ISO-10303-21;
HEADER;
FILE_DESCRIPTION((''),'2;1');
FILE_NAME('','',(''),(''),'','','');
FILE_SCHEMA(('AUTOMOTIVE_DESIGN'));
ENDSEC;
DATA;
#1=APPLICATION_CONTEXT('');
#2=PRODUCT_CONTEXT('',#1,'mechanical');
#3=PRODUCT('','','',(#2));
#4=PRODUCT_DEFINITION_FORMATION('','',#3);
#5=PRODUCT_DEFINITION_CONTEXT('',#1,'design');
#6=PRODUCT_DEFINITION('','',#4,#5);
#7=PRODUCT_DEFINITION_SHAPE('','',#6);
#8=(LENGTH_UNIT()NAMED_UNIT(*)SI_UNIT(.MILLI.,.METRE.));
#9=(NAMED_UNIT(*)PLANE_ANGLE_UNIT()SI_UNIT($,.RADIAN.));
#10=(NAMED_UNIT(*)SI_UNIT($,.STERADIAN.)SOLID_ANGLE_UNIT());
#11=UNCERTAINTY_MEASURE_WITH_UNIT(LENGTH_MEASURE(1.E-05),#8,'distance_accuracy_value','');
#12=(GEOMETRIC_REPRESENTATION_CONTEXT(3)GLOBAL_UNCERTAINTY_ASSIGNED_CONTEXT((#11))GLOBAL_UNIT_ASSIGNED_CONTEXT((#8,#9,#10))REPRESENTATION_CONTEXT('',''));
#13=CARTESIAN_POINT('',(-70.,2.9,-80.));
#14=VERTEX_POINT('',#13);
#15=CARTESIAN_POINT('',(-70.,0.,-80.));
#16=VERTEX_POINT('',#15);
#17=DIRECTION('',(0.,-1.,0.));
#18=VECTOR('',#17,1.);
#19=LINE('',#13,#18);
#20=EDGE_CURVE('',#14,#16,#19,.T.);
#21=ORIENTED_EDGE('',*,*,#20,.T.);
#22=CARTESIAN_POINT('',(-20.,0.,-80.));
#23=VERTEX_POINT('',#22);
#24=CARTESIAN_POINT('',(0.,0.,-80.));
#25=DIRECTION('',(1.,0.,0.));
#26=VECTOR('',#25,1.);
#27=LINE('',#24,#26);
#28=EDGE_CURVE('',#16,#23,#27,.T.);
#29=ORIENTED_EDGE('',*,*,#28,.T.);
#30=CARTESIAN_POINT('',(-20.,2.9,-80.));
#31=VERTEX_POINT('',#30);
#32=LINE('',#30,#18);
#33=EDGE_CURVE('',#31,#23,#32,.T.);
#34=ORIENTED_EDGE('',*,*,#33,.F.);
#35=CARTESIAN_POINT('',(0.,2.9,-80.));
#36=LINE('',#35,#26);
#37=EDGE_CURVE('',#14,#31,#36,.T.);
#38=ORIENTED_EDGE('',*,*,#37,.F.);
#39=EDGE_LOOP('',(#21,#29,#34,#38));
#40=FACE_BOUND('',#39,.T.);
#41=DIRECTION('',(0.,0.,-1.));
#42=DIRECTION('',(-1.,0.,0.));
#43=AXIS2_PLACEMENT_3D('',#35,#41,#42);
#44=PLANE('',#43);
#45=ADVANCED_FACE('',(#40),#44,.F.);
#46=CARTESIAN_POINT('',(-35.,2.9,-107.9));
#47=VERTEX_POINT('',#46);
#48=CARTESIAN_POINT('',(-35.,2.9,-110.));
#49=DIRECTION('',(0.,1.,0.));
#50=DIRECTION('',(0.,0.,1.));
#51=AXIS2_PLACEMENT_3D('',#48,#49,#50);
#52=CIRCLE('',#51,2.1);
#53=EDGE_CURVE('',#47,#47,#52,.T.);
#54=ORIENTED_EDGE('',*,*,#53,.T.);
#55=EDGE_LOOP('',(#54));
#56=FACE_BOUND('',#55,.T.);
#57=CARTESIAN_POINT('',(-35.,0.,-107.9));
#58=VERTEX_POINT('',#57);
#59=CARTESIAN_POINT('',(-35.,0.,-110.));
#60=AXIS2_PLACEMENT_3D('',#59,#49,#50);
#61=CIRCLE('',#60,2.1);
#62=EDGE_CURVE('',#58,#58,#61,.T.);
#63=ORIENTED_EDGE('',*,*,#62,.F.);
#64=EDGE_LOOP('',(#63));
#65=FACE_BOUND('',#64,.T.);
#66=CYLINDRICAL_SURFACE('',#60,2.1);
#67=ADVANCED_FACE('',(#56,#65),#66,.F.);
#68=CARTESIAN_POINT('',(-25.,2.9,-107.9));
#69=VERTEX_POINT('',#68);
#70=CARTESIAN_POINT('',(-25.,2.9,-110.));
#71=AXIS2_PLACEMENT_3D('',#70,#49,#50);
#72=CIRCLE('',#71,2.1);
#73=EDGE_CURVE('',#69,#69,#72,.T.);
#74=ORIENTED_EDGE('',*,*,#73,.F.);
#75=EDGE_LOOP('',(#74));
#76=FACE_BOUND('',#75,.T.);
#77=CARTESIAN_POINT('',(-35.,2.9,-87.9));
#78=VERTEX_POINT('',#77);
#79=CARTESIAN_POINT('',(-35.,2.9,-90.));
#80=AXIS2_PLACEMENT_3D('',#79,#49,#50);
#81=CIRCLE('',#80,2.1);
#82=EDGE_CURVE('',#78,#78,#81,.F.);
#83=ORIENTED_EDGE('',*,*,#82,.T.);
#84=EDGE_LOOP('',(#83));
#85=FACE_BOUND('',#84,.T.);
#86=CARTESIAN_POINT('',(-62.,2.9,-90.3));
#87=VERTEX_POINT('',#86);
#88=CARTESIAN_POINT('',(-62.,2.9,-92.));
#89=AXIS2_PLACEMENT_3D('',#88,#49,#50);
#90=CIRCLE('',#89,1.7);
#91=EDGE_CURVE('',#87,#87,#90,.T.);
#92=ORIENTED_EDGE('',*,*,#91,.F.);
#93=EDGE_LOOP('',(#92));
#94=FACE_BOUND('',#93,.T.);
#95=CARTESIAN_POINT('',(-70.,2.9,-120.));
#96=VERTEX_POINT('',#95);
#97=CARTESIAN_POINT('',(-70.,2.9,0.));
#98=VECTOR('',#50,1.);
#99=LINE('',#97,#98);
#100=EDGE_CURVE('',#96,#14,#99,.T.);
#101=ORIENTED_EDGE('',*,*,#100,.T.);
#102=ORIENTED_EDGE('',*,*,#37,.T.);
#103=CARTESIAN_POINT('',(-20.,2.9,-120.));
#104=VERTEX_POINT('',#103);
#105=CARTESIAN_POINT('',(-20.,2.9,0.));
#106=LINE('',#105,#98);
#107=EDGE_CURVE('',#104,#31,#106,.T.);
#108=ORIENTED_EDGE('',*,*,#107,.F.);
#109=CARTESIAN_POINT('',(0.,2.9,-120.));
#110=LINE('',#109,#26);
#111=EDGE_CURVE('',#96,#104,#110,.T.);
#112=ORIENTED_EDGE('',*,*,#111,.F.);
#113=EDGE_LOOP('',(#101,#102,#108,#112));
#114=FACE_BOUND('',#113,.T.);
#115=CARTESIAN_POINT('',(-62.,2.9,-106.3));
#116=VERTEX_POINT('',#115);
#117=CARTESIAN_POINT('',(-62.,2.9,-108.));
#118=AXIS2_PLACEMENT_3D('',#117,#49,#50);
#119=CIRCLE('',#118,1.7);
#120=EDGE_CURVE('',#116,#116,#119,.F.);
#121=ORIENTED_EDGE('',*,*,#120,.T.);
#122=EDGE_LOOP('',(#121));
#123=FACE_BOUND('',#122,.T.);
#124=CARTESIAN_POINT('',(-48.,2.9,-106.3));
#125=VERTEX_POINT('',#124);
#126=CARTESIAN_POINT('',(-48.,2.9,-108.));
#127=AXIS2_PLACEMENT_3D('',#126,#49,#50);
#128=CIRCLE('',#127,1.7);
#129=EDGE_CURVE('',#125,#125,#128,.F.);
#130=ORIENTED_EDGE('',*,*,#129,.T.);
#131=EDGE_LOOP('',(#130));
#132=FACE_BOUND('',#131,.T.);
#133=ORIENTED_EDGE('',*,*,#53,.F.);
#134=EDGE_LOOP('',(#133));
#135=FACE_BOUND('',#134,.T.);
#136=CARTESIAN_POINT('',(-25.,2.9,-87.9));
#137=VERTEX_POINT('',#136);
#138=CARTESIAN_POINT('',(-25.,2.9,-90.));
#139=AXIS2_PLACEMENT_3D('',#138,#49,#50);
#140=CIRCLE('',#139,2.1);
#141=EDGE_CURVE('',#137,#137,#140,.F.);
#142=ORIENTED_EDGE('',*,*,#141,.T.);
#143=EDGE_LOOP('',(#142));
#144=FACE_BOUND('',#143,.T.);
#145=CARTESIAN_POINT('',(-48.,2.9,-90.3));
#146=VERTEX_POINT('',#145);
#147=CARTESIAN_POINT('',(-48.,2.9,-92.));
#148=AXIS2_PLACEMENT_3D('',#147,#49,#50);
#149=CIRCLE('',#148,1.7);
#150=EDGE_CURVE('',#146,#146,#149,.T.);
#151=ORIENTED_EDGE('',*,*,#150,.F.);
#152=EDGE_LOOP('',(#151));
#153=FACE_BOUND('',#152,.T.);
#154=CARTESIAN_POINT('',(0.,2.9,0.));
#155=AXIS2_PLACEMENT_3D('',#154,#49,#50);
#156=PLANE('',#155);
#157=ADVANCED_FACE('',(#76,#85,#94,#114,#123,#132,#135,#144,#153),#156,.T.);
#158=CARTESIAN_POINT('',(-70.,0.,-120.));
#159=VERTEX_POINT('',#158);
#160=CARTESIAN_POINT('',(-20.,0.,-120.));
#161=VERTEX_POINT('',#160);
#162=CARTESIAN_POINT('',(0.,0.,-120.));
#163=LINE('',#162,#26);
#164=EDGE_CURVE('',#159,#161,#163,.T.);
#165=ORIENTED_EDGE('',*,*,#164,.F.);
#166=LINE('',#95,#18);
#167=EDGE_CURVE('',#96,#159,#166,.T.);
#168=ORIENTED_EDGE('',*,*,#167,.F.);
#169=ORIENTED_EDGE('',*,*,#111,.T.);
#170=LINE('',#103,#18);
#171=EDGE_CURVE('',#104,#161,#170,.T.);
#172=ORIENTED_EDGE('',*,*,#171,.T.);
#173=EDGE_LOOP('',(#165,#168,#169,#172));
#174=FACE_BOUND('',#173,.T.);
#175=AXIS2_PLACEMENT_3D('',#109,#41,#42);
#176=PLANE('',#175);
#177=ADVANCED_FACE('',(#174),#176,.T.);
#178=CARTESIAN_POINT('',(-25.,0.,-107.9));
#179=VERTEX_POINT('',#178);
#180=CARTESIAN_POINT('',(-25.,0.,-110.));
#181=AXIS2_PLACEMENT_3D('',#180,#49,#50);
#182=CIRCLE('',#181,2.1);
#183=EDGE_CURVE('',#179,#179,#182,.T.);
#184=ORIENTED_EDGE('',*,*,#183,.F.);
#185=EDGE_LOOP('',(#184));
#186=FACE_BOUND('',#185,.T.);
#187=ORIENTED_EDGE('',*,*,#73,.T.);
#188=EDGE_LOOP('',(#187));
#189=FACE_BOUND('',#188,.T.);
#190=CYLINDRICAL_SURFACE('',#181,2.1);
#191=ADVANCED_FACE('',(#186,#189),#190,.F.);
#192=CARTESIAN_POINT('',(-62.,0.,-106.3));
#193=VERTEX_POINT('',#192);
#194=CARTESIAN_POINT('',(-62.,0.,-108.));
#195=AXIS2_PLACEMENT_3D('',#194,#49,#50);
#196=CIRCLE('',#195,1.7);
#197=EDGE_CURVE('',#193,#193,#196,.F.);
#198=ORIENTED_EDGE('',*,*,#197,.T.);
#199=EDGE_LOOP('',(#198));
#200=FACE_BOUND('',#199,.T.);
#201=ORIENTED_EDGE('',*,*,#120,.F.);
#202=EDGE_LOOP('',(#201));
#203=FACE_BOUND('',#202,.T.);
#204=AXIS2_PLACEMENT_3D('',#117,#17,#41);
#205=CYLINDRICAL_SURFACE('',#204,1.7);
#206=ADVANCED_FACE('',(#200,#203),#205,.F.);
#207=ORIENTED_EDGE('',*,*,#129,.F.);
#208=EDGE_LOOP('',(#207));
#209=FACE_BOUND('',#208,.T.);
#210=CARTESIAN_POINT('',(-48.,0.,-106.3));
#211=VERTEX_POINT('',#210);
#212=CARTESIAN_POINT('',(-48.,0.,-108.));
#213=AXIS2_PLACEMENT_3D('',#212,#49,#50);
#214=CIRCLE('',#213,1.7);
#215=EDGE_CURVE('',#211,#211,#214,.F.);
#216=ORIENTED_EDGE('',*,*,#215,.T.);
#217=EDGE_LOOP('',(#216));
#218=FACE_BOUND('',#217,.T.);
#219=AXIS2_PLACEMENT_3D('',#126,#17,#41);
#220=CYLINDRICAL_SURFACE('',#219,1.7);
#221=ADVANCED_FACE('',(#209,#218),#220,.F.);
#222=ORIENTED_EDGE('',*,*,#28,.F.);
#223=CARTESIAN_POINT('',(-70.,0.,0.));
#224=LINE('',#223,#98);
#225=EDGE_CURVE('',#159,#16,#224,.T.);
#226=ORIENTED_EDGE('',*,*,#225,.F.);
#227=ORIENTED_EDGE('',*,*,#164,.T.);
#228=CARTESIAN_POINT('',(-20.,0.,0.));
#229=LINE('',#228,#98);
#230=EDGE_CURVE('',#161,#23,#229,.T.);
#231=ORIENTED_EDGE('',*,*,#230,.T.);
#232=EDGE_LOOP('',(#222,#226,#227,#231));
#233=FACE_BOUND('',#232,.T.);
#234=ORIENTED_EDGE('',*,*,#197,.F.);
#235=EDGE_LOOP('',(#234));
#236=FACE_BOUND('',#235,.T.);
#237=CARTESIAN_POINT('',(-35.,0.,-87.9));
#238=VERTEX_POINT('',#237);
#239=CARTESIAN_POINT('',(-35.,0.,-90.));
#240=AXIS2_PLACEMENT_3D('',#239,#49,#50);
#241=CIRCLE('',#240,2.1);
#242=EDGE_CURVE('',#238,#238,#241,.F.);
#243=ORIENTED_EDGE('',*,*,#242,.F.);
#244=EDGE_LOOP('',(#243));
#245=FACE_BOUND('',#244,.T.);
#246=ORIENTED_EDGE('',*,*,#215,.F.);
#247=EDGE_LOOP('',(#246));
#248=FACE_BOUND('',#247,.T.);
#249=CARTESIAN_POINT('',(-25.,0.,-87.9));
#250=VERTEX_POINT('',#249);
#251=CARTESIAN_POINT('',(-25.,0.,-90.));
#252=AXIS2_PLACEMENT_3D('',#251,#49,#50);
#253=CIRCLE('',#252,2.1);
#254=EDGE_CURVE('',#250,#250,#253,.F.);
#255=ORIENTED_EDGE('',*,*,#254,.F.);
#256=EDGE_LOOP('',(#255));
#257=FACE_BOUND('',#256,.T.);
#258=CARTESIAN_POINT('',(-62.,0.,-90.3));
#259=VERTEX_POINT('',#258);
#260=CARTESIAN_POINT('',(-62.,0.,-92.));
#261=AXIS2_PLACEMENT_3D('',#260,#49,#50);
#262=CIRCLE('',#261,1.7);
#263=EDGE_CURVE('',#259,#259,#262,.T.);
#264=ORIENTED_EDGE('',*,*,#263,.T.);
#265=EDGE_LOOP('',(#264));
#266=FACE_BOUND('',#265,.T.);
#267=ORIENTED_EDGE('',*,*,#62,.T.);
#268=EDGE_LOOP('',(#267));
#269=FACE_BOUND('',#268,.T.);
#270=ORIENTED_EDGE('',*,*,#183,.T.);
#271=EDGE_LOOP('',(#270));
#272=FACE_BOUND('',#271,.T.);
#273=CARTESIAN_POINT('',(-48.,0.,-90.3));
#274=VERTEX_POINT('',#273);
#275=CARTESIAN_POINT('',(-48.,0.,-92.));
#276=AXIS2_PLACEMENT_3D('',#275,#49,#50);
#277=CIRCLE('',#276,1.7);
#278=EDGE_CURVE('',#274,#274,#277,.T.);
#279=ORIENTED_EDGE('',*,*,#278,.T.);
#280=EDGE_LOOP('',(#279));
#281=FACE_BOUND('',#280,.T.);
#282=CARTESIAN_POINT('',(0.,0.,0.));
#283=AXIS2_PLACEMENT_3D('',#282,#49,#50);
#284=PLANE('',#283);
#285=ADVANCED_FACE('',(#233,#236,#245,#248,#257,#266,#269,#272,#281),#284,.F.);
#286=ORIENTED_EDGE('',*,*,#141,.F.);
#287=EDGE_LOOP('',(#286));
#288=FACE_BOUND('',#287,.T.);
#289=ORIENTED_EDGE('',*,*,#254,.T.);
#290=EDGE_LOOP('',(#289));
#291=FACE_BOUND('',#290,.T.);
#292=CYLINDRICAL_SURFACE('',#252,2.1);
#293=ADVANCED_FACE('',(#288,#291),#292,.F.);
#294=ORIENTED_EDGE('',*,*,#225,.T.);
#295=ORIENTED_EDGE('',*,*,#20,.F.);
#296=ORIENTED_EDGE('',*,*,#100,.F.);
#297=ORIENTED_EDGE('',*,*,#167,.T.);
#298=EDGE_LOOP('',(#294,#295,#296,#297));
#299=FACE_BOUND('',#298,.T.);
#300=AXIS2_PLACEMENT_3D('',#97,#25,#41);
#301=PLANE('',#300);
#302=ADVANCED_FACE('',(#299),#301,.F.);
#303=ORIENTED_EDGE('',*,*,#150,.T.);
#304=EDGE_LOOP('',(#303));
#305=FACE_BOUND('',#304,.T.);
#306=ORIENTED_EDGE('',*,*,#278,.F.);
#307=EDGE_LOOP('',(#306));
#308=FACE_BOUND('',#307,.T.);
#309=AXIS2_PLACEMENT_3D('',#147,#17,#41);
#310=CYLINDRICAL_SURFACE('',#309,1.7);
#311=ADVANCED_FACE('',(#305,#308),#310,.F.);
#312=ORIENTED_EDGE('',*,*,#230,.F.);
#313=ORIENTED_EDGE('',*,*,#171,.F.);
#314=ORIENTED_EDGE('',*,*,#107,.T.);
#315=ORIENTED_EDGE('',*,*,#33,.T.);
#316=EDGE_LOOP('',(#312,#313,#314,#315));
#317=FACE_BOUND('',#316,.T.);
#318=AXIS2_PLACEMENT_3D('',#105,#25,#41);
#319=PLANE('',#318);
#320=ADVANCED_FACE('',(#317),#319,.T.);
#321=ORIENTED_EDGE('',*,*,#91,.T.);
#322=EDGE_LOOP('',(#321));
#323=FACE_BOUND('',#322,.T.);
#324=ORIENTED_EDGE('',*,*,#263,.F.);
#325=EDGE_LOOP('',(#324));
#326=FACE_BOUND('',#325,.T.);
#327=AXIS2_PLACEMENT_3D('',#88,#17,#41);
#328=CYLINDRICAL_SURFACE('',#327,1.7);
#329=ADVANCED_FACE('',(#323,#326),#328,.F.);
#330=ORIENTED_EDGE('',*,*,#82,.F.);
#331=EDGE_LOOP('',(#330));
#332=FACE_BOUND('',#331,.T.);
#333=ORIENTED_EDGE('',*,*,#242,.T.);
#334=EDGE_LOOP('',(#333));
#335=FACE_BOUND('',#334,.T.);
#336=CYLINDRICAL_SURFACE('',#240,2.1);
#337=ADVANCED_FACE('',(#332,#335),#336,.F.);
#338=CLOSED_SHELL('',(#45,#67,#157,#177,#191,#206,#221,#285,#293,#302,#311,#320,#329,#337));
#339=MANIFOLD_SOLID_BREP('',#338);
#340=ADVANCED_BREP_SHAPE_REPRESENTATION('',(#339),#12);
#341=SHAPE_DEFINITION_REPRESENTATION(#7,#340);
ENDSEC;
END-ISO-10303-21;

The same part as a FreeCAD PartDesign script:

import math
import FreeCAD as App
import Part
import Sketcher

doc = App.newDocument("Part")
body = doc.addObject("PartDesign::Body", "Body")

# Sketch on XZ plane
sketch1 = body.newObject("Sketcher::SketchObject", "Sketch")
sketch1.AttachmentSupport = (doc.getObject("XZ_Plane"), [""])
sketch1.MapMode = "FlatFace"
sketch1.addGeometry(Part.LineSegment(App.Vector(-70, -80, 0), App.Vector(-20, -80, 0)), False)
sketch1.addGeometry(Part.LineSegment(App.Vector(-20, -80, 0), App.Vector(-20, -120, 0)), False)
sketch1.addGeometry(Part.LineSegment(App.Vector(-20, -120, 0), App.Vector(-70, -120, 0)), False)
sketch1.addGeometry(Part.LineSegment(App.Vector(-70, -120, 0), App.Vector(-70, -80, 0)), False)
sketch1.addGeometry(Part.ArcOfCircle(Part.Circle(App.Vector(-48, -92, 0), App.Vector(0, 0, 1), 1.7), math.radians(90), math.radians(360)), False)
sketch1.addGeometry(Part.ArcOfCircle(Part.Circle(App.Vector(-48, -92, 0), App.Vector(0, 0, 1), 1.7), math.radians(0), math.radians(90)), False)
sketch1.addGeometry(Part.ArcOfCircle(Part.Circle(App.Vector(-62, -92, 0), App.Vector(0, 0, 1), 1.7), math.radians(180), math.radians(360)), False)
sketch1.addGeometry(Part.ArcOfCircle(Part.Circle(App.Vector(-62, -92, 0), App.Vector(0, 0, 1), 1.7), math.radians(0), math.radians(90)), False)
sketch1.addGeometry(Part.ArcOfCircle(Part.Circle(App.Vector(-62, -92, 0), App.Vector(0, 0, 1), 1.7), math.radians(90), math.radians(180)), False)
sketch1.addGeometry(Part.Circle(App.Vector(-62, -108, 0), App.Vector(0, 0, 1), 1.7), False)
sketch1.addGeometry(Part.Circle(App.Vector(-48, -108, 0), App.Vector(0, 0, 1), 1.7), False)
sketch1.addConstraint(Sketcher.Constraint("Coincident", 0, 2, 1, 1))
sketch1.addConstraint(Sketcher.Constraint("Coincident", 1, 2, 2, 1))
sketch1.addConstraint(Sketcher.Constraint("Coincident", 2, 2, 3, 1))
sketch1.addConstraint(Sketcher.Constraint("Coincident", 3, 2, 0, 1))
sketch1.addConstraint(Sketcher.Constraint("Tangent", 4, 1, 5, 2))
sketch1.addConstraint(Sketcher.Constraint("Coincident", 5, 1, 4, 2))
sketch1.addConstraint(Sketcher.Constraint("Tangent", 6, 2, 7, 1))
sketch1.addConstraint(Sketcher.Constraint("Tangent", 7, 2, 8, 1))
sketch1.addConstraint(Sketcher.Constraint("Tangent", 8, 2, 6, 1))
sketch1.addConstraint(Sketcher.Constraint("Horizontal", 0))
sketch1.addConstraint(Sketcher.Constraint("Vertical", 1))
sketch1.addConstraint(Sketcher.Constraint("Horizontal", 2))
sketch1.addConstraint(Sketcher.Constraint("Vertical", 3))
sketch1.addConstraint(Sketcher.Constraint("Equal", 5, 6))
sketch1.addConstraint(Sketcher.Constraint("Equal", 8, 9))
sketch1.addConstraint(Sketcher.Constraint("Equal", 9, 10))
sketch1.addConstraint(Sketcher.Constraint("Horizontal", 5, 3, 6, 3))
sketch1.addConstraint(Sketcher.Constraint("Horizontal", 9, 3, 10, 3))
sketch1.addConstraint(Sketcher.Constraint("Horizontal", 8, 3, 5, 1))
sketch1.addConstraint(Sketcher.Constraint("Horizontal", 5, 1, 6, 2))
sketch1.addConstraint(Sketcher.Constraint("Horizontal", 6, 2, 8, 2))
sketch1.addConstraint(Sketcher.Constraint("Vertical", 8, 3, 9, 3))
sketch1.addConstraint(Sketcher.Constraint("Vertical", 5, 3, 10, 3))
sketch1.addConstraint(Sketcher.Constraint("Vertical", 10, 3, 4, 1))
sketch1.addConstraint(Sketcher.Constraint("Vertical", 9, 3, 7, 2))
sketch1.addConstraint(Sketcher.Constraint("Diameter", 9, 3.4))
sketch1.addConstraint(Sketcher.Constraint("DistanceX", 0, 1, 0, 2, 50.0))
sketch1.addConstraint(Sketcher.Constraint("DistanceY", 1, 2, 1, 1, 40.0))
sketch1.addConstraint(Sketcher.Constraint("DistanceX", 4, 3, -1, 1, 48.0))
sketch1.addConstraint(Sketcher.Constraint("DistanceY", 4, 3, -1, 1, 92.0))
sketch1.addConstraint(Sketcher.Constraint("DistanceX", 6, 3, -1, 1, 62.0))
sketch1.addConstraint(Sketcher.Constraint("DistanceY", 9, 3, -1, 1, 108.0))
sketch1.addConstraint(Sketcher.Constraint("DistanceX", 0, 2, -1, 1, 20.0))
sketch1.addConstraint(Sketcher.Constraint("DistanceY", 0, 2, -1, 1, 80.0))
pad1 = body.newObject("PartDesign::Pad", "Pad")
pad1.Profile = sketch1
pad1.Length = 2.9
pad1.Reversed = True

# Sketch on XZ plane
sketch2 = body.newObject("Sketcher::SketchObject", "Sketch001")
sketch2.AttachmentSupport = (doc.getObject("XZ_Plane"), [""])
sketch2.MapMode = "FlatFace"
sketch2.AttachmentOffset = App.Placement(App.Vector(0, 0, -2.9), App.Rotation())
sketch2.addGeometry(Part.Circle(App.Vector(-25, -110, 0), App.Vector(0, 0, 1), 2.1), False)
sketch2.addGeometry(Part.Circle(App.Vector(-25, -90, 0), App.Vector(0, 0, 1), 2.1), False)
sketch2.addGeometry(Part.Circle(App.Vector(-35, -90, 0), App.Vector(0, 0, 1), 2.1), False)
sketch2.addGeometry(Part.Circle(App.Vector(-35, -110, 0), App.Vector(0, 0, 1), 2.1), False)
sketch2.addConstraint(Sketcher.Constraint("Equal", 0, 1))
sketch2.addConstraint(Sketcher.Constraint("Equal", 1, 2))
sketch2.addConstraint(Sketcher.Constraint("Equal", 2, 3))
sketch2.addConstraint(Sketcher.Constraint("Horizontal", 1, 3, 2, 3))
sketch2.addConstraint(Sketcher.Constraint("Horizontal", 0, 3, 3, 3))
sketch2.addConstraint(Sketcher.Constraint("Vertical", 0, 3, 1, 3))
sketch2.addConstraint(Sketcher.Constraint("Vertical", 2, 3, 3, 3))
sketch2.addConstraint(Sketcher.Constraint("Diameter", 0, 4.2))
sketch2.addConstraint(Sketcher.Constraint("DistanceX", 0, 3, -1, 1, 25.0))
sketch2.addConstraint(Sketcher.Constraint("DistanceY", 0, 3, -1, 1, 110.0))
sketch2.addConstraint(Sketcher.Constraint("DistanceY", 1, 3, -1, 1, 90.0))
sketch2.addConstraint(Sketcher.Constraint("DistanceX", 2, 3, -1, 1, 35.0))
pocket1 = body.newObject("PartDesign::Pocket", "Pocket")
pocket1.Profile = sketch2
pocket1.Length = 2.9
pocket1.Reversed = True

doc.recompute()
